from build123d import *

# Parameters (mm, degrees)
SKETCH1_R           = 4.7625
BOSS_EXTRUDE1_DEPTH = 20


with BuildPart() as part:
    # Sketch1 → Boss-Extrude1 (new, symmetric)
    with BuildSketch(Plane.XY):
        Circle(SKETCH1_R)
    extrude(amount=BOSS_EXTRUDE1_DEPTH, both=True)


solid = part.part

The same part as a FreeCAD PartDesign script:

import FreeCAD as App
import Part
import Sketcher

doc = App.newDocument("Part")
params = doc.addObject("Spreadsheet::Sheet", "Params")
for row, (alias, value) in enumerate([
    ("pad1_length", "40 mm"),
], start=1):
    params.set(f"A{row}", alias)
    params.set(f"B{row}", "=" + value)
    params.setAlias(f"B{row}", alias)

body = doc.addObject("PartDesign::Body", "Body")

# Sketch on XY plane
sketch1 = body.newObject("Sketcher::SketchObject", "Sketch")
sketch1.AttachmentSupport = (doc.getObject("XY_Plane"), [""])
sketch1.MapMode = "FlatFace"
sketch1.addGeometry(Part.Circle(App.Vector(0, 0, 0), App.Vector(0, 0, 1), 4.7625), False)
sketch1.addConstraint([
    Sketcher.Constraint("Coincident", 0, 3, -1, 1),
    Sketcher.Constraint("Diameter", 0, 9.525),
])
pad1 = body.newObject("PartDesign::Pad", "Pad")
pad1.Profile = sketch1
pad1.setExpression("Length", "Params.pad1_length")
pad1.Midplane = True

doc.recompute()
